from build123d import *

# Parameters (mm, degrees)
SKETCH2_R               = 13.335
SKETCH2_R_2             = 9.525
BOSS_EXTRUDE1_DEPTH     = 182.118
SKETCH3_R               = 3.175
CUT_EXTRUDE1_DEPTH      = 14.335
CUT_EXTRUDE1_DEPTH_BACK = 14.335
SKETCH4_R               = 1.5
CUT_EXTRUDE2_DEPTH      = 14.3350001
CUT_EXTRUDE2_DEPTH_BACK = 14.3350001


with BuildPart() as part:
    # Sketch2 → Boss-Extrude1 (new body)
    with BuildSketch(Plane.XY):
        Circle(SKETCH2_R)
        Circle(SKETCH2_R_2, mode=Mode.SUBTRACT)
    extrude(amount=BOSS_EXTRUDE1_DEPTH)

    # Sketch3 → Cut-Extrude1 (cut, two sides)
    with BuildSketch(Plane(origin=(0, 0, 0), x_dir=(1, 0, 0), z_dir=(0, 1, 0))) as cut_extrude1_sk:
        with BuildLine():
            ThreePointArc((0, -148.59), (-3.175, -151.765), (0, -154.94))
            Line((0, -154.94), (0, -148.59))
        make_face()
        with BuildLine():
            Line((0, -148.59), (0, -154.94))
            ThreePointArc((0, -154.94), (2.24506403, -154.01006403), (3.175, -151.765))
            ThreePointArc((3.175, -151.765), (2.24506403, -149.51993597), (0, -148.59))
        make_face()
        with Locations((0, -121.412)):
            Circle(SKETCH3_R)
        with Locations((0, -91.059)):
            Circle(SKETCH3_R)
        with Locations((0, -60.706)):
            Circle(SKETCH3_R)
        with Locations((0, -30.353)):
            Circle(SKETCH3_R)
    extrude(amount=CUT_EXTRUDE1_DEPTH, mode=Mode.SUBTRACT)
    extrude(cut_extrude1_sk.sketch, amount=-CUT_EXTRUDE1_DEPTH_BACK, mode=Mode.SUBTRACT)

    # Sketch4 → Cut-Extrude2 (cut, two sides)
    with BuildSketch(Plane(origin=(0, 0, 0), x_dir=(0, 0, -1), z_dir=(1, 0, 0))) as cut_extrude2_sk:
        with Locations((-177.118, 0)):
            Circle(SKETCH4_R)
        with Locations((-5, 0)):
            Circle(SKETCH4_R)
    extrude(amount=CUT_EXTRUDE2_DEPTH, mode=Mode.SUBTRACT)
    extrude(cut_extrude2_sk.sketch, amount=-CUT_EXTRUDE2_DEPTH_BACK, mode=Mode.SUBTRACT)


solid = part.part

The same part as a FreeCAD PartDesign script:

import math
import FreeCAD as App
import Part
import Sketcher

V = App.Vector
Q = App.Units.Quantity

doc = App.newDocument("Part")
body = doc.addObject("PartDesign::Body", "Body")

sketch1 = doc.addObject("Sketcher::SketchObject", "Sketch")
body.addObject(sketch1)
sketch1.AttachmentSupport = (doc.XY_Plane, [""])
sketch1.MapMode = "FlatFace"
sketch1.addGeometry(Part.Circle(V(0, 0, 0), V(0, 0, 1), 13), False)
sketch1.addGeometry(Part.Circle(V(0, 0, 0), V(0, 0, 1), 10), False)
sketch1.addConstraint(Sketcher.Constraint("Coincident", 0, 3, -1, 1))
sketch1.addConstraint(Sketcher.Constraint("Coincident", 1, 3, -1, 1))
sketch1.addConstraint(Sketcher.Constraint("Diameter", 0, Q("1.05 in")))
sketch1.addConstraint(Sketcher.Constraint("Diameter", 1, Q("0.75 in")))
pad1 = doc.addObject("PartDesign::Pad", "Pad")
body.addObject(pad1)
pad1.Profile = sketch1
pad1.Length = Q("7.17 in")

sketch2 = doc.addObject("Sketcher::SketchObject", "Sketch001")
body.addObject(sketch2)
sketch2.AttachmentSupport = (doc.XZ_Plane, [""])
sketch2.MapMode = "FlatFace"
sketch2.addGeometry(Part.ArcOfCircle(Part.Circle(V(0, 151.8, 0), V(0, 0, 1), 3.2), math.radians(90), math.radians(270)), False)
sketch2.addGeometry(Part.ArcOfCircle(Part.Circle(V(0, 151.8, 0), V(0, 0, 1), 3.2), math.radians(0), math.radians(90)), False)
sketch2.addGeometry(Part.ArcOfCircle(Part.Circle(V(0, 151.8, 0), V(0, 0, 1), 3.2), math.radians(-90), math.radians(0)), False)
sketch2.addGeometry(Part.Circle(V(0, 121.4, 0), V(0, 0, 1), 3.2), False)
sketch2.addGeometry(Part.Circle(V(0, 91.1, 0), V(0, 0, 1), 3.2), False)
sketch2.addGeometry(Part.Circle(V(0, 60.7, 0), V(0, 0, 1), 3.2), False)
sketch2.addGeometry(Part.Circle(V(0, 30.4, 0), V(0, 0, 1), 3.2), False)
sketch2.addConstraint(Sketcher.Constraint("Tangent", 0, 1, 1, 2))
sketch2.addConstraint(Sketcher.Constraint("Tangent", 1, 1, 2, 2))
sketch2.addConstraint(Sketcher.Constraint("Tangent", 2, 1, 0, 2))
sketch2.addConstraint(Sketcher.Constraint("Equal", 2, 3))
sketch2.addConstraint(Sketcher.Constraint("Equal", 3, 4))
sketch2.addConstraint(Sketcher.Constraint("Equal", 4, 5))
sketch2.addConstraint(Sketcher.Constraint("Equal", 5, 6))
sketch2.addConstraint(Sketcher.Constraint("PointOnObject", 0, 3, -2))
sketch2.addConstraint(Sketcher.Constraint("PointOnObject", 3, 3, -2))
sketch2.addConstraint(Sketcher.Constraint("PointOnObject", 4, 3, -2))
sketch2.addConstraint(Sketcher.Constraint("PointOnObject", 5, 3, -2))
sketch2.addConstraint(Sketcher.Constraint("PointOnObject", 6, 3, -2))
sketch2.addConstraint(Sketcher.Constraint("PointOnObject", 0, 1, -2))
sketch2.addConstraint(Sketcher.Constraint("PointOnObject", 2, 1, -2))
sketch2.addConstraint(Sketcher.Constraint("Horizontal", 2, 3, 1, 1))
sketch2.addConstraint(Sketcher.Constraint("Diameter", 3, Q("0.25 in")))
sketch2.addConstraint(Sketcher.Constraint("DistanceY", -1, 1, 0, 1, Q("6.1 in")))
sketch2.addConstraint(Sketcher.Constraint("DistanceY", -1, 1, 3, 3, Q("4.78 in")))
sketch2.addConstraint(Sketcher.Constraint("DistanceY", -1, 1, 5, 3, Q("2.39 in")))
sketch2.addConstraint(Sketcher.Constraint("DistanceY", 4, 3, 1, 3, Q("2.39 in")))
sketch2.addConstraint(Sketcher.Constraint("DistanceY", 6, 3, 4, 3, Q("2.39 in")))
pocket1 = doc.addObject("PartDesign::Pocket", "Pocket")
body.addObject(pocket1)
pocket1.Profile = sketch2
pocket1.Type = "ThroughAll"
pocket1.Midplane = True

sketch3 = doc.addObject("Sketcher::SketchObject", "Sketch002")
body.addObject(sketch3)
sketch3.AttachmentSupport = (doc.YZ_Plane, [""])
sketch3.MapMode = "FlatFace"
sketch3.addGeometry(Part.Circle(V(0, 177.1, 0), V(0, 0, 1), 1.5), False)
sketch3.addGeometry(Part.Circle(V(0, 5, 0), V(0, 0, 1), 1.5), False)
sketch3.addConstraint(Sketcher.Constraint("Equal", 0, 1))
sketch3.addConstraint(Sketcher.Constraint("PointOnObject", 0, 3, -2))
sketch3.addConstraint(Sketcher.Constraint("PointOnObject", 1, 3, -2))
sketch3.addConstraint(Sketcher.Constraint("Diameter", 0, Q("3 mm")))
sketch3.addConstraint(Sketcher.Constraint("DistanceY", -1, 1, 0, 3, Q("177.118 mm")))
sketch3.addConstraint(Sketcher.Constraint("DistanceY", -1, 1, 1, 3, Q("5 mm")))
pocket2 = doc.addObject("PartDesign::Pocket", "Pocket001")
body.addObject(pocket2)
pocket2.Profile = sketch3
pocket2.Type = "ThroughAll"
pocket2.Midplane = True

doc.recompute()
